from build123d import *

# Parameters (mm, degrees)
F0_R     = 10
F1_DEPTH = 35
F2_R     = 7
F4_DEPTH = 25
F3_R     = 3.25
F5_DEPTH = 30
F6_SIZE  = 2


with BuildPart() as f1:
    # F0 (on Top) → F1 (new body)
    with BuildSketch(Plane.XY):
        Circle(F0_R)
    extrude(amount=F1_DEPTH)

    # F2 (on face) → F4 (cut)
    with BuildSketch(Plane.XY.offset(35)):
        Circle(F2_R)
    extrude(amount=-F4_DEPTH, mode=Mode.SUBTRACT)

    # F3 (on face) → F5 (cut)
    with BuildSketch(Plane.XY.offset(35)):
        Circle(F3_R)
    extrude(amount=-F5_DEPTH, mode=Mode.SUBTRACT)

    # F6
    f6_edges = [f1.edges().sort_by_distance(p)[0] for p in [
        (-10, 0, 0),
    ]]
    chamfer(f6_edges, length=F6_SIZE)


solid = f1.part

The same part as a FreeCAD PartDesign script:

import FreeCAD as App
import Part
import Sketcher
from FreeCAD import Vector
Q = App.Units.Quantity


def edges_at(feature, points):
    """Names of the edges that pass closest to the given points."""
    edges = feature.Shape.Edges
    near = lambda p: min(range(len(edges)), key=lambda i: edges[i].distToShape(Part.Vertex(*p))[0])
    return sorted({f"Edge{near(p) + 1}" for p in points})

doc = App.newDocument("Part")
params = doc.addObject("Spreadsheet::Sheet", "Params")
for row, (alias, value) in enumerate([
    ("sketch1_diameter", "20 mm"),
    ("pad1_length", "35 mm"),
    ("sketch2_diameter", "14 mm"),
    ("pocket1_length", "25 mm"),
    ("sketch3_diameter", "6.5 mm"),
    ("pocket2_length", "30 mm"),
    ("chamfer_size", "2 mm"),
], start=1):
    params.set(f"A{row}", alias)
    params.set(f"B{row}", "=" + value)
    params.setAlias(f"B{row}", alias)

body = doc.addObject("PartDesign::Body", "Body")

sketch1 = body.newObject("Sketcher::SketchObject", "Sketch")
sketch1.AttachmentSupport = (doc.getObject("XY_Plane"), [""])
sketch1.MapMode = "FlatFace"
sketch1.addGeometry(Part.Circle(Vector(0, 0, 0), Vector(0, 0, 1), 10), False)
sketch1.addConstraint(Sketcher.Constraint("Coincident", 0, 3, -1, 1))
sketch1.addConstraint(Sketcher.Constraint("Diameter", 0, Q("20 mm")))
sketch1.setExpression("Constraints[1]", "Params.sketch1_diameter")
pad1 = body.newObject("PartDesign::Pad", "Pad")
pad1.Profile = sketch1
pad1.setExpression("Length", "Params.pad1_length")

sketch2 = body.newObject("Sketcher::SketchObject", "Sketch001")
sketch2.AttachmentSupport = (doc.getObject("XY_Plane"), [""])
sketch2.MapMode = "FlatFace"
sketch2.AttachmentOffset = App.Placement(Vector(0, 0, 35), App.Rotation())
sketch2.addGeometry(Part.Circle(Vector(0, 0, 0), Vector(0, 0, 1), 7), False)
sketch2.addConstraint(Sketcher.Constraint("Coincident", 0, 3, -1, 1))
sketch2.addConstraint(Sketcher.Constraint("Diameter", 0, Q("14 mm")))
sketch2.setExpression("Constraints[1]", "Params.sketch2_diameter")
pocket1 = body.newObject("PartDesign::Pocket", "Pocket")
pocket1.Profile = sketch2
pocket1.setExpression("Length", "Params.pocket1_length")

sketch3 = body.newObject("Sketcher::SketchObject", "Sketch002")
sketch3.AttachmentSupport = (doc.getObject("XY_Plane"), [""])
sketch3.MapMode = "FlatFace"
sketch3.AttachmentOffset = App.Placement(Vector(0, 0, 35), App.Rotation())
sketch3.addGeometry(Part.Circle(Vector(0, 0, 0), Vector(0, 0, 1), 3.25), False)
sketch3.addConstraint(Sketcher.Constraint("Coincident", 0, 3, -1, 1))
sketch3.addConstraint(Sketcher.Constraint("Diameter", 0, Q("6.5 mm")))
sketch3.setExpression("Constraints[1]", "Params.sketch3_diameter")
pocket2 = body.newObject("PartDesign::Pocket", "Pocket001")
pocket2.Profile = sketch3
pocket2.setExpression("Length", "Params.pocket2_length")
doc.recompute()

chamfer = body.newObject("PartDesign::Chamfer", "Chamfer")
chamfer.Base = (pocket2, edges_at(pocket2, [(-10, 0, 0)]))
chamfer.setExpression("Size", "Params.chamfer_size")

doc.recompute()
